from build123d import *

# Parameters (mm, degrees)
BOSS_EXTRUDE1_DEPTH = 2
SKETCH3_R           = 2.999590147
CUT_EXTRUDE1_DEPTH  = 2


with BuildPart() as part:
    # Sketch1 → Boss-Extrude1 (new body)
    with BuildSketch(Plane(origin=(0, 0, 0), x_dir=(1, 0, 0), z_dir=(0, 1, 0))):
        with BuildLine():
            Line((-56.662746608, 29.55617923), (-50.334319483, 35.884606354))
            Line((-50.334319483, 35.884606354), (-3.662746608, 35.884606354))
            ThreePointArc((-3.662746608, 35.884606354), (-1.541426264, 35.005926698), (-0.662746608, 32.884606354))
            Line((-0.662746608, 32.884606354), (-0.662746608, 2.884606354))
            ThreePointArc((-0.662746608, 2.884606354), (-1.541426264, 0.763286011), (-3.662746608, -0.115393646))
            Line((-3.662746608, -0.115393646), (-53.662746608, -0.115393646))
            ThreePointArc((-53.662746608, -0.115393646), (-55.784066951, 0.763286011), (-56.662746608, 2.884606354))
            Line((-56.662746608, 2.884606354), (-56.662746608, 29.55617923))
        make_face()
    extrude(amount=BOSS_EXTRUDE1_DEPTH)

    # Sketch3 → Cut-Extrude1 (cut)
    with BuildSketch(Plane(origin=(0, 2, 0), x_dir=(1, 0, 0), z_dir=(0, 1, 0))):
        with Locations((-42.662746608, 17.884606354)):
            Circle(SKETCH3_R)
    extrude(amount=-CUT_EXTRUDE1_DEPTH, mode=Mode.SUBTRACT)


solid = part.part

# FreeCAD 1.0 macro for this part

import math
import FreeCAD as App
import Part
import Sketcher
from FreeCAD import Vector
Q = App.Units.Quantity

doc = App.newDocument("Part")
body = doc.addObject("PartDesign::Body", "Body")

sketch1 = body.newObject("Sketcher::SketchObject", "Sketch")
sketch1.AttachmentSupport = (doc.getObject("XZ_Plane"), [""])
sketch1.MapMode = "FlatFace"
sketch1.addGeometry(Part.LineSegment(Vector(-50.3, -35.9, 0), Vector(-56.7, -29.6, 0)), False)
sketch1.addGeometry(Part.LineSegment(Vector(-56.7, -29.6, 0), Vector(-56.7, -2.9, 0)), False)
sketch1.addGeometry(Part.ArcOfCircle(Part.Circle(Vector(-53.7, -2.9, 0), Vector(0, 0, 1), 3), math.radians(90), math.radians(180)), False)
sketch1.addGeometry(Part.LineSegment(Vector(-53.7, 0.1, 0), Vector(-3.7, 0.1, 0)), False)
sketch1.addGeometry(Part.ArcOfCircle(Part.Circle(Vector(-3.7, -2.9, 0), Vector(0, 0, 1), 3), math.radians(0), math.radians(90)), False)
sketch1.addGeometry(Part.LineSegment(Vector(-0.7, -2.9, 0), Vector(-0.7, -32.9, 0)), False)
sketch1.addGeometry(Part.ArcOfCircle(Part.Circle(Vector(-3.7, -32.9, 0), Vector(0, 0, 1), 3), math.radians(-90), math.radians(0)), False)
sketch1.addGeometry(Part.LineSegment(Vector(-3.7, -35.9, 0), Vector(-50.3, -35.9, 0)), False)
sketch1.addConstraint(Sketcher.Constraint("Coincident", 0, 2, 1, 1))
sketch1.addConstraint(Sketcher.Constraint("Tangent", 1, 2, 2, 2))
sketch1.addConstraint(Sketcher.Constraint("Tangent", 2, 1, 3, 1))
sketch1.addConstraint(Sketcher.Constraint("Tangent", 3, 2, 4, 2))
sketch1.addConstraint(Sketcher.Constraint("Tangent", 4, 1, 5, 1))
sketch1.addConstraint(Sketcher.Constraint("Tangent", 5, 2, 6, 2))
sketch1.addConstraint(Sketcher.Constraint("Tangent", 6, 1, 7, 1))
sketch1.addConstraint(Sketcher.Constraint("Coincident", 7, 2, 0, 1))
sketch1.addConstraint(Sketcher.Constraint("Vertical", 1))
sketch1.addConstraint(Sketcher.Constraint("Horizontal", 3))
sketch1.addConstraint(Sketcher.Constraint("Vertical", 5))
sketch1.addConstraint(Sketcher.Constraint("Horizontal", 7))
sketch1.addConstraint(Sketcher.Constraint("Equal", 2, 4))
sketch1.addConstraint(Sketcher.Constraint("Equal", 4, 6))
sketch1.addConstraint(Sketcher.Constraint("Radius", 2, Q("3 mm")))
sketch1.addConstraint(Sketcher.Constraint("DistanceX", 3, 1, 3, 2, Q("50 mm")))
sketch1.addConstraint(Sketcher.Constraint("DistanceY", 5, 2, 5, 1, Q("30 mm")))
sketch1.addConstraint(Sketcher.Constraint("Angle", 0, Q("135 deg")))
sketch1.addConstraint(Sketcher.Constraint("DistanceX", 7, 2, 7, 1, Q("46.671573 mm")))
sketch1.addConstraint(Sketcher.Constraint("DistanceY", 0, 2, -1, 1, Q("29.556179 mm")))
sketch1.addConstraint(Sketcher.Constraint("DistanceX", 7, 2, -1, 1, Q("50.334319 mm")))
pad1 = body.newObject("PartDesign::Pad", "Pad")
pad1.Profile = sketch1
pad1.Length = 2
pad1.Reversed = True

sketch2 = body.newObject("Sketcher::SketchObject", "Sketch001")
sketch2.AttachmentSupport = (doc.getObject("XZ_Plane"), [""])
sketch2.MapMode = "FlatFace"
sketch2.AttachmentOffset = App.Placement(Vector(0, 0, -2), App.Rotation())
sketch2.addGeometry(Part.Circle(Vector(-42.7, -17.9, 0), Vector(0, 0, 1), 3), False)
sketch2.addConstraint(Sketcher.Constraint("Diameter", 0, Q("5.99918 mm")))
sketch2.addConstraint(Sketcher.Constraint("DistanceX", 0, 3, -1, 1, Q("42.662747 mm")))
sketch2.addConstraint(Sketcher.Constraint("DistanceY", 0, 3, -1, 1, Q("17.884606 mm")))
pocket1 = body.newObject("PartDesign::Pocket", "Pocket")
pocket1.Profile = sketch2
pocket1.Length = 2
pocket1.Reversed = True

doc.recompute()
